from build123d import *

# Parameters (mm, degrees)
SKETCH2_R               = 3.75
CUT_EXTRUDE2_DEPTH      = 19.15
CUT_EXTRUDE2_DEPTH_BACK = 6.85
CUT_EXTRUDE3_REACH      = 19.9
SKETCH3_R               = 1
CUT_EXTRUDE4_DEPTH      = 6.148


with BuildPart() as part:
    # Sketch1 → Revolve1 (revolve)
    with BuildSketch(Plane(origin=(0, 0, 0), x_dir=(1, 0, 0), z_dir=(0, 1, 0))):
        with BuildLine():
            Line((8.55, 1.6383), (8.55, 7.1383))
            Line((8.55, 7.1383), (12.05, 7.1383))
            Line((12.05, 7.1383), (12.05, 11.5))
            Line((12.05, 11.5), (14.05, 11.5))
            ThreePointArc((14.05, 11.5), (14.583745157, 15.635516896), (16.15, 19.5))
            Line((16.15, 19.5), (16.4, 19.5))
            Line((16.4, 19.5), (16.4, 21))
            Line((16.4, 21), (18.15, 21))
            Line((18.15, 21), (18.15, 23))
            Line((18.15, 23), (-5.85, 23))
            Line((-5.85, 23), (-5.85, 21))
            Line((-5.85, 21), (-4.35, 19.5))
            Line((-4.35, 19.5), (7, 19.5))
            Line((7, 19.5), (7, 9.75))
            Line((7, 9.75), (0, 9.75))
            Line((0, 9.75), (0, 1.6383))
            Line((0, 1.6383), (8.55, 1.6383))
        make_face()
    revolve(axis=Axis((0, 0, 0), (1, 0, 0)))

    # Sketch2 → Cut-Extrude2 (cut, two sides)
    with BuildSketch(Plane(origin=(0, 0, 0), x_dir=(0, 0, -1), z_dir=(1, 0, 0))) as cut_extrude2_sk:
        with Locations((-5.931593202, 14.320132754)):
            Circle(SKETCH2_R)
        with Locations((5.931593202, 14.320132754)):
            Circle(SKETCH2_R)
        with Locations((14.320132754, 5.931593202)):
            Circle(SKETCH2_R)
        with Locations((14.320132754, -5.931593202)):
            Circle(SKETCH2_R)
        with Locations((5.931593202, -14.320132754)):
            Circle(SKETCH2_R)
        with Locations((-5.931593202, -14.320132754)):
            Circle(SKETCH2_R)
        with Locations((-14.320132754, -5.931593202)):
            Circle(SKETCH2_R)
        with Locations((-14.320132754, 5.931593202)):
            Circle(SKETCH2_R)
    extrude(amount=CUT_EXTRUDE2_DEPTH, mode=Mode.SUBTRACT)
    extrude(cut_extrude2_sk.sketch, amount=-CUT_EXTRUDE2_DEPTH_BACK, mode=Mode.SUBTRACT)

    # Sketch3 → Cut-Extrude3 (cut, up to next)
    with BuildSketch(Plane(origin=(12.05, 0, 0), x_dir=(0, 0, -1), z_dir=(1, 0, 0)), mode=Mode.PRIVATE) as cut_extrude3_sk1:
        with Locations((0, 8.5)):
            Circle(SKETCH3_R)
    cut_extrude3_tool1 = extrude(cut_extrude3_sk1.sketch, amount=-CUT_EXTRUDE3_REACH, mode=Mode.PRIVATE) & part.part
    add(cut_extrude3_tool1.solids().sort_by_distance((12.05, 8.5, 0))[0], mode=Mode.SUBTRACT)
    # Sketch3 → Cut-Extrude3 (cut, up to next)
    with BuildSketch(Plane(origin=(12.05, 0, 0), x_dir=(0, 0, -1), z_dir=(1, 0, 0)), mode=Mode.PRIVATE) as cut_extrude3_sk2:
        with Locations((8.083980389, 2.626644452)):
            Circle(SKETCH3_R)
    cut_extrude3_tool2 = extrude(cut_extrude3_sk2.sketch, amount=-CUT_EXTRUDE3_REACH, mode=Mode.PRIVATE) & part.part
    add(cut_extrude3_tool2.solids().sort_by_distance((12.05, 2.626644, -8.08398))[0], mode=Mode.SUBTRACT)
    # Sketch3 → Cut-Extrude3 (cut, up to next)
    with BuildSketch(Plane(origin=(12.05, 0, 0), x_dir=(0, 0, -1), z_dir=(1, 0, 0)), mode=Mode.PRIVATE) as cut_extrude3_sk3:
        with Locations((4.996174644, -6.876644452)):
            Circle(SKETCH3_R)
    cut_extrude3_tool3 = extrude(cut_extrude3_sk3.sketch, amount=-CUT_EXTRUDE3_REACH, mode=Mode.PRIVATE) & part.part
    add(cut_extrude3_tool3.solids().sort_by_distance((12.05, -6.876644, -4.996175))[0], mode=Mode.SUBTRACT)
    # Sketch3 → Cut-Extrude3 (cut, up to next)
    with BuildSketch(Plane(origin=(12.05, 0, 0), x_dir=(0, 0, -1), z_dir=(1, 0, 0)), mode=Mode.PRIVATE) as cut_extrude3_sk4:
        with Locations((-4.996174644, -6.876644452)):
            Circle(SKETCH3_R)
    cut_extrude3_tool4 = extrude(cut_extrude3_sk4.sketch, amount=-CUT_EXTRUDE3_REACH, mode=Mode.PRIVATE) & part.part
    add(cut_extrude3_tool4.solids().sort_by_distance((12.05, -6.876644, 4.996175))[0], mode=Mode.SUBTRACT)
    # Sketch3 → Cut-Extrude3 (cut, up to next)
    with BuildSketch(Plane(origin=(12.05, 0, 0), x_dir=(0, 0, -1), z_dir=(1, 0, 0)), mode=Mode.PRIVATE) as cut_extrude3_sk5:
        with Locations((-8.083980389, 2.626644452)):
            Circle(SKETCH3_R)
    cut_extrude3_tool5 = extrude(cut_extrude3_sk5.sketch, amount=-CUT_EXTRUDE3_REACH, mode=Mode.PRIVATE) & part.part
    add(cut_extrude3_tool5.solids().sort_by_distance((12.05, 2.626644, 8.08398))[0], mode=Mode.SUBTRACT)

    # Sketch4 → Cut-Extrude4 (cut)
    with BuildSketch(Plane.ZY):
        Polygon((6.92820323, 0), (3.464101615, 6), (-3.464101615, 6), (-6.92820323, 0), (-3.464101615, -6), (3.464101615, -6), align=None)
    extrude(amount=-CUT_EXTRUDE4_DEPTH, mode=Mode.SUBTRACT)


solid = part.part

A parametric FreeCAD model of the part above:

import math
import FreeCAD as App
import Part
import Sketcher
from FreeCAD import Vector
Q = App.Units.Quantity

doc = App.newDocument("Part")
body = doc.addObject("PartDesign::Body", "Body")

# Sketch on XZ plane
sketch1 = doc.addObject("Sketcher::SketchObject", "Sketch")
body.addObject(sketch1)
sketch1.AttachmentSupport = (doc.XZ_Plane, [""])
sketch1.MapMode = "FlatFace"
sketch1.addGeometry(Part.LineSegment(Vector(8.55, -1.6383, 0), Vector(8.55, -7.1383, 0)), False)
sketch1.addGeometry(Part.LineSegment(Vector(8.55, -7.1383, 0), Vector(12.05, -7.1383, 0)), False)
sketch1.addGeometry(Part.LineSegment(Vector(12.05, -7.1383, 0), Vector(12.05, -11.5, 0)), False)
sketch1.addGeometry(Part.LineSegment(Vector(12.05, -11.5, 0), Vector(14.05, -11.5, 0)), False)
sketch1.addGeometry(Part.ArcOfCircle(Part.Circle(Vector(30.338095, -11.5, 0), Vector(0, 0, 1), 16.288095), math.radians(-180), math.radians(-150.583392)), False)
sketch1.addGeometry(Part.LineSegment(Vector(16.15, -19.5, 0), Vector(16.4, -19.5, 0)), False)
sketch1.addGeometry(Part.LineSegment(Vector(16.4, -19.5, 0), Vector(16.4, -21, 0)), False)
sketch1.addGeometry(Part.LineSegment(Vector(16.4, -21, 0), Vector(18.15, -21, 0)), False)
sketch1.addGeometry(Part.LineSegment(Vector(18.15, -21, 0), Vector(18.15, -23, 0)), False)
sketch1.addGeometry(Part.LineSegment(Vector(18.15, -23, 0), Vector(-5.85, -23, 0)), False)
sketch1.addGeometry(Part.LineSegment(Vector(-5.85, -23, 0), Vector(-5.85, -21, 0)), False)
sketch1.addGeometry(Part.LineSegment(Vector(-5.85, -21, 0), Vector(-4.35, -19.5, 0)), False)
sketch1.addGeometry(Part.LineSegment(Vector(-4.35, -19.5, 0), Vector(7, -19.5, 0)), False)
sketch1.addGeometry(Part.LineSegment(Vector(7, -19.5, 0), Vector(7, -9.75, 0)), False)
sketch1.addGeometry(Part.LineSegment(Vector(7, -9.75, 0), Vector(0, -9.75, 0)), False)
sketch1.addGeometry(Part.LineSegment(Vector(0, -9.75, 0), Vector(0, -1.6383, 0)), False)
sketch1.addGeometry(Part.LineSegment(Vector(0, -1.6383, 0), Vector(8.55, -1.6383, 0)), False)
sketch1.addConstraint(Sketcher.Constraint("Coincident", 0, 2, 1, 1))
sketch1.addConstraint(Sketcher.Constraint("Coincident", 1, 2, 2, 1))
sketch1.addConstraint(Sketcher.Constraint("Coincident", 2, 2, 3, 1))
sketch1.addConstraint(Sketcher.Constraint("Coincident", 3, 2, 4, 1))
sketch1.addConstraint(Sketcher.Constraint("Coincident", 4, 2, 5, 1))
sketch1.addConstraint(Sketcher.Constraint("Coincident", 5, 2, 6, 1))
sketch1.addConstraint(Sketcher.Constraint("Coincident", 6, 2, 7, 1))
sketch1.addConstraint(Sketcher.Constraint("Coincident", 7, 2, 8, 1))
sketch1.addConstraint(Sketcher.Constraint("Coincident", 8, 2, 9, 1))
sketch1.addConstraint(Sketcher.Constraint("Coincident", 9, 2, 10, 1))
sketch1.addConstraint(Sketcher.Constraint("Coincident", 10, 2, 11, 1))
sketch1.addConstraint(Sketcher.Constraint("Coincident", 11, 2, 12, 1))
sketch1.addConstraint(Sketcher.Constraint("Coincident", 12, 2, 13, 1))
sketch1.addConstraint(Sketcher.Constraint("Coincident", 13, 2, 14, 1))
sketch1.addConstraint(Sketcher.Constraint("Coincident", 14, 2, 15, 1))
sketch1.addConstraint(Sketcher.Constraint("Coincident", 15, 2, 16, 1))
sketch1.addConstraint(Sketcher.Constraint("Coincident", 16, 2, 0, 1))
sketch1.addConstraint(Sketcher.Constraint("Vertical", 0))
sketch1.addConstraint(Sketcher.Constraint("Horizontal", 1))
sketch1.addConstraint(Sketcher.Constraint("Vertical", 2))
sketch1.addConstraint(Sketcher.Constraint("Horizontal", 3))
sketch1.addConstraint(Sketcher.Constraint("Horizontal", 5))
sketch1.addConstraint(Sketcher.Constraint("Vertical", 6))
sketch1.addConstraint(Sketcher.Constraint("Horizontal", 7))
sketch1.addConstraint(Sketcher.Constraint("Vertical", 8))
sketch1.addConstraint(Sketcher.Constraint("Horizontal", 9))
sketch1.addConstraint(Sketcher.Constraint("Vertical", 10))
sketch1.addConstraint(Sketcher.Constraint("Horizontal", 12))
sketch1.addConstraint(Sketcher.Constraint("Vertical", 13))
sketch1.addConstraint(Sketcher.Constraint("Horizontal", 14))
sketch1.addConstraint(Sketcher.Constraint("Vertical", 15))
sketch1.addConstraint(Sketcher.Constraint("Horizontal", 16))
sketch1.addConstraint(Sketcher.Constraint("PointOnObject", 14, 2, -2))
sketch1.addConstraint(Sketcher.Constraint("Horizontal", 4, 3, 2, 2))
sketch1.addConstraint(Sketcher.Constraint("Horizontal", 7, 2, 10, 2))
sketch1.addConstraint(Sketcher.Constraint("Horizontal", 5, 2, 11, 2))
sketch1.addConstraint(Sketcher.Constraint("Equal", 3, 8))
sketch1.addConstraint(Sketcher.Constraint("DistanceX", 3, 1, 3, 2, 2.0))
sketch1.addConstraint(Sketcher.Constraint("DistanceX", 9, 2, 9, 1, 24.0))
sketch1.addConstraint(Sketcher.Constraint("DistanceX", 14, 2, 14, 1, 7.0))
sketch1.addConstraint(Sketcher.Constraint("Angle", 11, Q("45 deg")))
sketch1.addConstraint(Sketcher.Constraint("DistanceX", 1, 1, 1, 2, 3.5))
sketch1.addConstraint(Sketcher.Constraint("DistanceY", 0, 2, 0, 1, 5.5))
sketch1.addConstraint(Sketcher.Constraint("DistanceY", 6, 2, 6, 1, 1.5))
sketch1.addConstraint(Sketcher.Constraint("DistanceY", 6, 2, -1, 1, 21.0))
sketch1.addConstraint(Sketcher.Constraint("DistanceY", 4, 2, 3, 2, 8.0))
sketch1.addConstraint(Sketcher.Constraint("DistanceX", 4, 2, 7, 2, 2.0))
sketch1.addConstraint(Sketcher.Constraint("DistanceX", 5, 1, 5, 2, 0.25))
sketch1.addConstraint(Sketcher.Constraint("DistanceX", 12, 1, 12, 2, 11.35))
sketch1.addConstraint(Sketcher.Constraint("DistanceX", 16, 1, 16, 2, 8.55))
sketch1.addConstraint(Sketcher.Constraint("DistanceY", 13, 1, 13, 2, 9.75))
sketch1.addConstraint(Sketcher.Constraint("DistanceY", 2, 2, 2, 1, 4.3617))
revolution = doc.addObject("PartDesign::Revolution", "Revolution")
body.addObject(revolution)
revolution.Profile = sketch1
revolution.ReferenceAxis = (sketch1, ["H_Axis"])
revolution.Angle = 360

# Sketch on YZ plane
sketch2 = doc.addObject("Sketcher::SketchObject", "Sketch001")
body.addObject(sketch2)
sketch2.AttachmentSupport = (doc.YZ_Plane, [""])
sketch2.MapMode = "FlatFace"
sketch2.addGeometry(Part.Circle(Vector(14.320133, 5.931593, 0), Vector(0, 0, 1), 3.75), False)
sketch2.addGeometry(Part.Circle(Vector(14.320133, -5.931593, 0), Vector(0, 0, 1), 3.75), False)
sketch2.addGeometry(Part.Circle(Vector(5.931593, -14.320133, 0), Vector(0, 0, 1), 3.75), False)
sketch2.addGeometry(Part.Circle(Vector(-5.931593, -14.320133, 0), Vector(0, 0, 1), 3.75), False)
sketch2.addGeometry(Part.Circle(Vector(-14.320133, -5.931593, 0), Vector(0, 0, 1), 3.75), False)
sketch2.addGeometry(Part.Circle(Vector(-14.320133, 5.931593, 0), Vector(0, 0, 1), 3.75), False)
sketch2.addGeometry(Part.Circle(Vector(-5.931593, 14.320133, 0), Vector(0, 0, 1), 3.75), False)
sketch2.addGeometry(Part.Circle(Vector(5.931593, 14.320133, 0), Vector(0, 0, 1), 3.75), False)
sketch2.addConstraint(Sketcher.Constraint("Equal", 0, 1))
sketch2.addConstraint(Sketcher.Constraint("Equal", 1, 2))
sketch2.addConstraint(Sketcher.Constraint("Equal", 2, 3))
sketch2.addConstraint(Sketcher.Constraint("Equal", 3, 4))
sketch2.addConstraint(Sketcher.Constraint("Equal", 4, 5))
sketch2.addConstraint(Sketcher.Constraint("Equal", 5, 6))
sketch2.addConstraint(Sketcher.Constraint("Equal", 6, 7))
sketch2.addConstraint(Sketcher.Constraint("Symmetric", 0, 3, 4, 3, -1, 1))
sketch2.addConstraint(Sketcher.Constraint("Symmetric", 1, 3, 5, 3, -1, 1))
sketch2.addConstraint(Sketcher.Constraint("Symmetric", 2, 3, 6, 3, -1, 1))
sketch2.addConstraint(Sketcher.Constraint("Symmetric", 3, 3, 7, 3, -1, 1))
sketch2.addConstraint(Sketcher.Constraint("Symmetric", 2, 3, 3, 3, -2))
sketch2.addConstraint(Sketcher.Constraint("Symmetric", 1, 3, 4, 3, -2))
sketch2.addConstraint(Sketcher.Constraint("Diameter", 0, 7.5))
sketch2.addConstraint(Sketcher.Constraint("DistanceX", 2, 3, 1, 3, 8.38854))
sketch2.addConstraint(Sketcher.Constraint("DistanceY", 2, 3, 1, 3, 8.38854))
sketch2.addConstraint(Sketcher.Constraint("DistanceX", -1, 1, 0, 3, 14.320133))
sketch2.addConstraint(Sketcher.Constraint("DistanceY", -1, 1, 0, 3, 5.931593))
pocket1 = doc.addObject("PartDesign::Pocket", "Pocket")
body.addObject(pocket1)
pocket1.Profile = sketch2
pocket1.Type = "ThroughAll"
pocket1.Midplane = True

# Sketch on YZ plane
sketch3 = doc.addObject("Sketcher::SketchObject", "Sketch002")
body.addObject(sketch3)
sketch3.AttachmentSupport = (doc.YZ_Plane, [""])
sketch3.MapMode = "FlatFace"
sketch3.AttachmentOffset = App.Placement(Vector(0, 0, 12.05), App.Rotation())
sketch3.addGeometry(Part.Circle(Vector(8.5, 0, 0), Vector(0, 0, 1), 1), False)
sketch3.addConstraint(Sketcher.Constraint("PointOnObject", 0, 3, -1))
sketch3.addConstraint(Sketcher.Constraint("Diameter", 0, 2.0))
sketch3.addConstraint(Sketcher.Constraint("DistanceX", -1, 1, 0, 3, 8.5))
pocket2 = doc.addObject("PartDesign::Pocket", "Pocket001")
body.addObject(pocket2)
pocket2.Profile = sketch3
pocket2.Type = "UpToFirst"

# Sketch on YZ plane
sketch4 = doc.addObject("Sketcher::SketchObject", "Sketch003")
body.addObject(sketch4)
sketch4.AttachmentSupport = (doc.YZ_Plane, [""])
sketch4.MapMode = "FlatFace"
sketch4.AttachmentOffset = App.Placement(Vector(0, 0, 12.05), App.Rotation())
sketch4.addGeometry(Part.Circle(Vector(2.626644, -8.08398, 0), Vector(0, 0, 1), 1), False)
sketch4.addConstraint(Sketcher.Constraint("Diameter", 0, 2.0))
sketch4.addConstraint(Sketcher.Constraint("DistanceY", 0, 3, -1, 1, 8.08398))
sketch4.addConstraint(Sketcher.Constraint("DistanceX", -1, 1, 0, 3, 2.626644))
pocket3 = doc.addObject("PartDesign::Pocket", "Pocket002")
body.addObject(pocket3)
pocket3.Profile = sketch4
pocket3.Type = "UpToFirst"

# Sketch on YZ plane
sketch5 = doc.addObject("Sketcher::SketchObject", "Sketch004")
body.addObject(sketch5)
sketch5.AttachmentSupport = (doc.YZ_Plane, [""])
sketch5.MapMode = "FlatFace"
sketch5.AttachmentOffset = App.Placement(Vector(0, 0, 12.05), App.Rotation())
sketch5.addGeometry(Part.Circle(Vector(-6.876644, -4.996175, 0), Vector(0, 0, 1), 1), False)
sketch5.addConstraint(Sketcher.Constraint("Diameter", 0, 2.0))
sketch5.addConstraint(Sketcher.Constraint("DistanceX", 0, 3, -1, 1, 6.876644))
sketch5.addConstraint(Sketcher.Constraint("DistanceY", 0, 3, -1, 1, 4.996175))
pocket4 = doc.addObject("PartDesign::Pocket", "Pocket003")
body.addObject(pocket4)
pocket4.Profile = sketch5
pocket4.Type = "UpToFirst"

# Sketch on YZ plane
sketch6 = doc.addObject("Sketcher::SketchObject", "Sketch005")
body.addObject(sketch6)
sketch6.AttachmentSupport = (doc.YZ_Plane, [""])
sketch6.MapMode = "FlatFace"
sketch6.AttachmentOffset = App.Placement(Vector(0, 0, 12.05), App.Rotation())
sketch6.addGeometry(Part.Circle(Vector(-6.876644, 4.996175, 0), Vector(0, 0, 1), 1), False)
sketch6.addConstraint(Sketcher.Constraint("Diameter", 0, 2.0))
sketch6.addConstraint(Sketcher.Constraint("DistanceX", 0, 3, -1, 1, 6.876644))
sketch6.addConstraint(Sketcher.Constraint("DistanceY", -1, 1, 0, 3, 4.996175))
pocket5 = doc.addObject("PartDesign::Pocket", "Pocket004")
body.addObject(pocket5)
pocket5.Profile = sketch6
pocket5.Type = "UpToFirst"

# Sketch on YZ plane
sketch7 = doc.addObject("Sketcher::SketchObject", "Sketch006")
body.addObject(sketch7)
sketch7.AttachmentSupport = (doc.YZ_Plane, [""])
sketch7.MapMode = "FlatFace"
sketch7.AttachmentOffset = App.Placement(Vector(0, 0, 12.05), App.Rotation())
sketch7.addGeometry(Part.Circle(Vector(2.626644, 8.08398, 0), Vector(0, 0, 1), 1), False)
sketch7.addConstraint(Sketcher.Constraint("Diameter", 0, 2.0))
sketch7.addConstraint(Sketcher.Constraint("DistanceY", -1, 1, 0, 3, 8.08398))
sketch7.addConstraint(Sketcher.Constraint("DistanceX", -1, 1, 0, 3, 2.626644))
pocket6 = doc.addObject("PartDesign::Pocket", "Pocket005")
body.addObject(pocket6)
pocket6.Profile = sketch7
pocket6.Type = "UpToFirst"

# Sketch on YZ plane
sketch8 = doc.addObject("Sketcher::SketchObject", "Sketch007")
body.addObject(sketch8)
sketch8.AttachmentSupport = (doc.YZ_Plane, [""])
sketch8.MapMode = "FlatFace"
sketch8.addGeometry(Part.LineSegment(Vector(0, 6.928203, 0), Vector(6, 3.464102, 0)), False)
sketch8.addGeometry(Part.LineSegment(Vector(6, 3.464102, 0), Vector(6, -3.464102, 0)), False)
sketch8.addGeometry(Part.LineSegment(Vector(6, -3.464102, 0), Vector(0, -6.928203, 0)), False)
sketch8.addGeometry(Part.LineSegment(Vector(0, -6.928203, 0), Vector(-6, -3.464102, 0)), False)
sketch8.addGeometry(Part.LineSegment(Vector(-6, -3.464102, 0), Vector(-6, 3.464102, 0)), False)
sketch8.addGeometry(Part.LineSegment(Vector(-6, 3.464102, 0), Vector(0, 6.928203, 0)), False)
sketch8.addConstraint(Sketcher.Constraint("Coincident", 0, 2, 1, 1))
sketch8.addConstraint(Sketcher.Constraint("Coincident", 1, 2, 2, 1))
sketch8.addConstraint(Sketcher.Constraint("Coincident", 2, 2, 3, 1))
sketch8.addConstraint(Sketcher.Constraint("Coincident", 3, 2, 4, 1))
sketch8.addConstraint(Sketcher.Constraint("Coincident", 4, 2, 5, 1))
sketch8.addConstraint(Sketcher.Constraint("Coincident", 5, 2, 0, 1))
sketch8.addConstraint(Sketcher.Constraint("Vertical", 1))
sketch8.addConstraint(Sketcher.Constraint("Vertical", 4))
sketch8.addConstraint(Sketcher.Constraint("Symmetric", 0, 2, 3, 2, -1, 1))
sketch8.addConstraint(Sketcher.Constraint("Symmetric", 2, 2, 5, 2, -1, 1))
sketch8.addConstraint(Sketcher.Constraint("PointOnObject", 2, 2, -2))
sketch8.addConstraint(Sketcher.Constraint("Parallel", 2, 5))
sketch8.addConstraint(Sketcher.Constraint("Horizontal", 1, 2, 3, 2))
sketch8.addConstraint(Sketcher.Constraint("Angle", 0, Q("-30 deg")))
sketch8.addConstraint(Sketcher.Constraint("DistanceX", -1, 1, 0, 2, 6.0))
sketch8.addConstraint(Sketcher.Constraint("DistanceY", -1, 1, 0, 2, 3.464102))
pocket7 = doc.addObject("PartDesign::Pocket", "Pocket006")
body.addObject(pocket7)
pocket7.Profile = sketch8
pocket7.Length = 6.148
pocket7.Reversed = True

doc.recompute()
